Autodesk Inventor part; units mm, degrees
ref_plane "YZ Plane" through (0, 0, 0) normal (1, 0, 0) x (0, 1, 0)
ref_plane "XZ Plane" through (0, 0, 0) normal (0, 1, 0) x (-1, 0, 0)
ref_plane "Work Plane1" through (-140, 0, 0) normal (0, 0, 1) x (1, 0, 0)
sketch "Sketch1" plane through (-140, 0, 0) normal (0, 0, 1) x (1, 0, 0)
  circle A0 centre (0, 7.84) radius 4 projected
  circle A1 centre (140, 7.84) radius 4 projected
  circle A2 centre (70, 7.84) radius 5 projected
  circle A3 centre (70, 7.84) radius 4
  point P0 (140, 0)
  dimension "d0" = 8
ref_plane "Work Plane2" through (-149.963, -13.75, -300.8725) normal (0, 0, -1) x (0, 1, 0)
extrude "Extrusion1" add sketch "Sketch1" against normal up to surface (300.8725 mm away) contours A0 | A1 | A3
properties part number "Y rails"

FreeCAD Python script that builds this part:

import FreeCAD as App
import Part
import Sketcher
from FreeCAD import Vector
Q = App.Units.Quantity

doc = App.newDocument("Part")
body = doc.addObject("PartDesign::Body", "Body")
body.AllowCompound = True

# Sketch on XY plane
sketch1 = body.newObject("Sketcher::SketchObject", "Sketch")
sketch1.AttachmentSupport = (doc.getObject("XY_Plane"), [""])
sketch1.MapMode = "FlatFace"
sketch1.addGeometry([
    Part.Circle(Vector(-140, 7.84, 0), Vector(0, 0, 1), 4),
    Part.Circle(Vector(0, 7.84, 0), Vector(0, 0, 1), 4),
    Part.Circle(Vector(-70, 7.84, 0), Vector(0, 0, 1), 4),
], False)
sketch1.addConstraint([
    Sketcher.Constraint("Equal", 0, 1),
    Sketcher.Constraint("Equal", 1, 2),
    Sketcher.Constraint("PointOnObject", 1, 3, -2),
    Sketcher.Constraint("Horizontal", 0, 3, 1, 3),
    Sketcher.Constraint("Horizontal", 1, 3, 2, 3),
    Sketcher.Constraint("Diameter", 0, Q("8 mm")),
    Sketcher.Constraint("DistanceX", 0, 3, -1, 1, Q("140 mm")),
    Sketcher.Constraint("DistanceX", 2, 3, -1, 1, Q("70 mm")),
    Sketcher.Constraint("DistanceY", -1, 1, 0, 3, Q("7.84 mm")),
])
pad1 = body.newObject("PartDesign::Pad", "Pad")
pad1.Profile = sketch1
pad1.Length = 300.8725
pad1.Reversed = True

doc.recompute()
